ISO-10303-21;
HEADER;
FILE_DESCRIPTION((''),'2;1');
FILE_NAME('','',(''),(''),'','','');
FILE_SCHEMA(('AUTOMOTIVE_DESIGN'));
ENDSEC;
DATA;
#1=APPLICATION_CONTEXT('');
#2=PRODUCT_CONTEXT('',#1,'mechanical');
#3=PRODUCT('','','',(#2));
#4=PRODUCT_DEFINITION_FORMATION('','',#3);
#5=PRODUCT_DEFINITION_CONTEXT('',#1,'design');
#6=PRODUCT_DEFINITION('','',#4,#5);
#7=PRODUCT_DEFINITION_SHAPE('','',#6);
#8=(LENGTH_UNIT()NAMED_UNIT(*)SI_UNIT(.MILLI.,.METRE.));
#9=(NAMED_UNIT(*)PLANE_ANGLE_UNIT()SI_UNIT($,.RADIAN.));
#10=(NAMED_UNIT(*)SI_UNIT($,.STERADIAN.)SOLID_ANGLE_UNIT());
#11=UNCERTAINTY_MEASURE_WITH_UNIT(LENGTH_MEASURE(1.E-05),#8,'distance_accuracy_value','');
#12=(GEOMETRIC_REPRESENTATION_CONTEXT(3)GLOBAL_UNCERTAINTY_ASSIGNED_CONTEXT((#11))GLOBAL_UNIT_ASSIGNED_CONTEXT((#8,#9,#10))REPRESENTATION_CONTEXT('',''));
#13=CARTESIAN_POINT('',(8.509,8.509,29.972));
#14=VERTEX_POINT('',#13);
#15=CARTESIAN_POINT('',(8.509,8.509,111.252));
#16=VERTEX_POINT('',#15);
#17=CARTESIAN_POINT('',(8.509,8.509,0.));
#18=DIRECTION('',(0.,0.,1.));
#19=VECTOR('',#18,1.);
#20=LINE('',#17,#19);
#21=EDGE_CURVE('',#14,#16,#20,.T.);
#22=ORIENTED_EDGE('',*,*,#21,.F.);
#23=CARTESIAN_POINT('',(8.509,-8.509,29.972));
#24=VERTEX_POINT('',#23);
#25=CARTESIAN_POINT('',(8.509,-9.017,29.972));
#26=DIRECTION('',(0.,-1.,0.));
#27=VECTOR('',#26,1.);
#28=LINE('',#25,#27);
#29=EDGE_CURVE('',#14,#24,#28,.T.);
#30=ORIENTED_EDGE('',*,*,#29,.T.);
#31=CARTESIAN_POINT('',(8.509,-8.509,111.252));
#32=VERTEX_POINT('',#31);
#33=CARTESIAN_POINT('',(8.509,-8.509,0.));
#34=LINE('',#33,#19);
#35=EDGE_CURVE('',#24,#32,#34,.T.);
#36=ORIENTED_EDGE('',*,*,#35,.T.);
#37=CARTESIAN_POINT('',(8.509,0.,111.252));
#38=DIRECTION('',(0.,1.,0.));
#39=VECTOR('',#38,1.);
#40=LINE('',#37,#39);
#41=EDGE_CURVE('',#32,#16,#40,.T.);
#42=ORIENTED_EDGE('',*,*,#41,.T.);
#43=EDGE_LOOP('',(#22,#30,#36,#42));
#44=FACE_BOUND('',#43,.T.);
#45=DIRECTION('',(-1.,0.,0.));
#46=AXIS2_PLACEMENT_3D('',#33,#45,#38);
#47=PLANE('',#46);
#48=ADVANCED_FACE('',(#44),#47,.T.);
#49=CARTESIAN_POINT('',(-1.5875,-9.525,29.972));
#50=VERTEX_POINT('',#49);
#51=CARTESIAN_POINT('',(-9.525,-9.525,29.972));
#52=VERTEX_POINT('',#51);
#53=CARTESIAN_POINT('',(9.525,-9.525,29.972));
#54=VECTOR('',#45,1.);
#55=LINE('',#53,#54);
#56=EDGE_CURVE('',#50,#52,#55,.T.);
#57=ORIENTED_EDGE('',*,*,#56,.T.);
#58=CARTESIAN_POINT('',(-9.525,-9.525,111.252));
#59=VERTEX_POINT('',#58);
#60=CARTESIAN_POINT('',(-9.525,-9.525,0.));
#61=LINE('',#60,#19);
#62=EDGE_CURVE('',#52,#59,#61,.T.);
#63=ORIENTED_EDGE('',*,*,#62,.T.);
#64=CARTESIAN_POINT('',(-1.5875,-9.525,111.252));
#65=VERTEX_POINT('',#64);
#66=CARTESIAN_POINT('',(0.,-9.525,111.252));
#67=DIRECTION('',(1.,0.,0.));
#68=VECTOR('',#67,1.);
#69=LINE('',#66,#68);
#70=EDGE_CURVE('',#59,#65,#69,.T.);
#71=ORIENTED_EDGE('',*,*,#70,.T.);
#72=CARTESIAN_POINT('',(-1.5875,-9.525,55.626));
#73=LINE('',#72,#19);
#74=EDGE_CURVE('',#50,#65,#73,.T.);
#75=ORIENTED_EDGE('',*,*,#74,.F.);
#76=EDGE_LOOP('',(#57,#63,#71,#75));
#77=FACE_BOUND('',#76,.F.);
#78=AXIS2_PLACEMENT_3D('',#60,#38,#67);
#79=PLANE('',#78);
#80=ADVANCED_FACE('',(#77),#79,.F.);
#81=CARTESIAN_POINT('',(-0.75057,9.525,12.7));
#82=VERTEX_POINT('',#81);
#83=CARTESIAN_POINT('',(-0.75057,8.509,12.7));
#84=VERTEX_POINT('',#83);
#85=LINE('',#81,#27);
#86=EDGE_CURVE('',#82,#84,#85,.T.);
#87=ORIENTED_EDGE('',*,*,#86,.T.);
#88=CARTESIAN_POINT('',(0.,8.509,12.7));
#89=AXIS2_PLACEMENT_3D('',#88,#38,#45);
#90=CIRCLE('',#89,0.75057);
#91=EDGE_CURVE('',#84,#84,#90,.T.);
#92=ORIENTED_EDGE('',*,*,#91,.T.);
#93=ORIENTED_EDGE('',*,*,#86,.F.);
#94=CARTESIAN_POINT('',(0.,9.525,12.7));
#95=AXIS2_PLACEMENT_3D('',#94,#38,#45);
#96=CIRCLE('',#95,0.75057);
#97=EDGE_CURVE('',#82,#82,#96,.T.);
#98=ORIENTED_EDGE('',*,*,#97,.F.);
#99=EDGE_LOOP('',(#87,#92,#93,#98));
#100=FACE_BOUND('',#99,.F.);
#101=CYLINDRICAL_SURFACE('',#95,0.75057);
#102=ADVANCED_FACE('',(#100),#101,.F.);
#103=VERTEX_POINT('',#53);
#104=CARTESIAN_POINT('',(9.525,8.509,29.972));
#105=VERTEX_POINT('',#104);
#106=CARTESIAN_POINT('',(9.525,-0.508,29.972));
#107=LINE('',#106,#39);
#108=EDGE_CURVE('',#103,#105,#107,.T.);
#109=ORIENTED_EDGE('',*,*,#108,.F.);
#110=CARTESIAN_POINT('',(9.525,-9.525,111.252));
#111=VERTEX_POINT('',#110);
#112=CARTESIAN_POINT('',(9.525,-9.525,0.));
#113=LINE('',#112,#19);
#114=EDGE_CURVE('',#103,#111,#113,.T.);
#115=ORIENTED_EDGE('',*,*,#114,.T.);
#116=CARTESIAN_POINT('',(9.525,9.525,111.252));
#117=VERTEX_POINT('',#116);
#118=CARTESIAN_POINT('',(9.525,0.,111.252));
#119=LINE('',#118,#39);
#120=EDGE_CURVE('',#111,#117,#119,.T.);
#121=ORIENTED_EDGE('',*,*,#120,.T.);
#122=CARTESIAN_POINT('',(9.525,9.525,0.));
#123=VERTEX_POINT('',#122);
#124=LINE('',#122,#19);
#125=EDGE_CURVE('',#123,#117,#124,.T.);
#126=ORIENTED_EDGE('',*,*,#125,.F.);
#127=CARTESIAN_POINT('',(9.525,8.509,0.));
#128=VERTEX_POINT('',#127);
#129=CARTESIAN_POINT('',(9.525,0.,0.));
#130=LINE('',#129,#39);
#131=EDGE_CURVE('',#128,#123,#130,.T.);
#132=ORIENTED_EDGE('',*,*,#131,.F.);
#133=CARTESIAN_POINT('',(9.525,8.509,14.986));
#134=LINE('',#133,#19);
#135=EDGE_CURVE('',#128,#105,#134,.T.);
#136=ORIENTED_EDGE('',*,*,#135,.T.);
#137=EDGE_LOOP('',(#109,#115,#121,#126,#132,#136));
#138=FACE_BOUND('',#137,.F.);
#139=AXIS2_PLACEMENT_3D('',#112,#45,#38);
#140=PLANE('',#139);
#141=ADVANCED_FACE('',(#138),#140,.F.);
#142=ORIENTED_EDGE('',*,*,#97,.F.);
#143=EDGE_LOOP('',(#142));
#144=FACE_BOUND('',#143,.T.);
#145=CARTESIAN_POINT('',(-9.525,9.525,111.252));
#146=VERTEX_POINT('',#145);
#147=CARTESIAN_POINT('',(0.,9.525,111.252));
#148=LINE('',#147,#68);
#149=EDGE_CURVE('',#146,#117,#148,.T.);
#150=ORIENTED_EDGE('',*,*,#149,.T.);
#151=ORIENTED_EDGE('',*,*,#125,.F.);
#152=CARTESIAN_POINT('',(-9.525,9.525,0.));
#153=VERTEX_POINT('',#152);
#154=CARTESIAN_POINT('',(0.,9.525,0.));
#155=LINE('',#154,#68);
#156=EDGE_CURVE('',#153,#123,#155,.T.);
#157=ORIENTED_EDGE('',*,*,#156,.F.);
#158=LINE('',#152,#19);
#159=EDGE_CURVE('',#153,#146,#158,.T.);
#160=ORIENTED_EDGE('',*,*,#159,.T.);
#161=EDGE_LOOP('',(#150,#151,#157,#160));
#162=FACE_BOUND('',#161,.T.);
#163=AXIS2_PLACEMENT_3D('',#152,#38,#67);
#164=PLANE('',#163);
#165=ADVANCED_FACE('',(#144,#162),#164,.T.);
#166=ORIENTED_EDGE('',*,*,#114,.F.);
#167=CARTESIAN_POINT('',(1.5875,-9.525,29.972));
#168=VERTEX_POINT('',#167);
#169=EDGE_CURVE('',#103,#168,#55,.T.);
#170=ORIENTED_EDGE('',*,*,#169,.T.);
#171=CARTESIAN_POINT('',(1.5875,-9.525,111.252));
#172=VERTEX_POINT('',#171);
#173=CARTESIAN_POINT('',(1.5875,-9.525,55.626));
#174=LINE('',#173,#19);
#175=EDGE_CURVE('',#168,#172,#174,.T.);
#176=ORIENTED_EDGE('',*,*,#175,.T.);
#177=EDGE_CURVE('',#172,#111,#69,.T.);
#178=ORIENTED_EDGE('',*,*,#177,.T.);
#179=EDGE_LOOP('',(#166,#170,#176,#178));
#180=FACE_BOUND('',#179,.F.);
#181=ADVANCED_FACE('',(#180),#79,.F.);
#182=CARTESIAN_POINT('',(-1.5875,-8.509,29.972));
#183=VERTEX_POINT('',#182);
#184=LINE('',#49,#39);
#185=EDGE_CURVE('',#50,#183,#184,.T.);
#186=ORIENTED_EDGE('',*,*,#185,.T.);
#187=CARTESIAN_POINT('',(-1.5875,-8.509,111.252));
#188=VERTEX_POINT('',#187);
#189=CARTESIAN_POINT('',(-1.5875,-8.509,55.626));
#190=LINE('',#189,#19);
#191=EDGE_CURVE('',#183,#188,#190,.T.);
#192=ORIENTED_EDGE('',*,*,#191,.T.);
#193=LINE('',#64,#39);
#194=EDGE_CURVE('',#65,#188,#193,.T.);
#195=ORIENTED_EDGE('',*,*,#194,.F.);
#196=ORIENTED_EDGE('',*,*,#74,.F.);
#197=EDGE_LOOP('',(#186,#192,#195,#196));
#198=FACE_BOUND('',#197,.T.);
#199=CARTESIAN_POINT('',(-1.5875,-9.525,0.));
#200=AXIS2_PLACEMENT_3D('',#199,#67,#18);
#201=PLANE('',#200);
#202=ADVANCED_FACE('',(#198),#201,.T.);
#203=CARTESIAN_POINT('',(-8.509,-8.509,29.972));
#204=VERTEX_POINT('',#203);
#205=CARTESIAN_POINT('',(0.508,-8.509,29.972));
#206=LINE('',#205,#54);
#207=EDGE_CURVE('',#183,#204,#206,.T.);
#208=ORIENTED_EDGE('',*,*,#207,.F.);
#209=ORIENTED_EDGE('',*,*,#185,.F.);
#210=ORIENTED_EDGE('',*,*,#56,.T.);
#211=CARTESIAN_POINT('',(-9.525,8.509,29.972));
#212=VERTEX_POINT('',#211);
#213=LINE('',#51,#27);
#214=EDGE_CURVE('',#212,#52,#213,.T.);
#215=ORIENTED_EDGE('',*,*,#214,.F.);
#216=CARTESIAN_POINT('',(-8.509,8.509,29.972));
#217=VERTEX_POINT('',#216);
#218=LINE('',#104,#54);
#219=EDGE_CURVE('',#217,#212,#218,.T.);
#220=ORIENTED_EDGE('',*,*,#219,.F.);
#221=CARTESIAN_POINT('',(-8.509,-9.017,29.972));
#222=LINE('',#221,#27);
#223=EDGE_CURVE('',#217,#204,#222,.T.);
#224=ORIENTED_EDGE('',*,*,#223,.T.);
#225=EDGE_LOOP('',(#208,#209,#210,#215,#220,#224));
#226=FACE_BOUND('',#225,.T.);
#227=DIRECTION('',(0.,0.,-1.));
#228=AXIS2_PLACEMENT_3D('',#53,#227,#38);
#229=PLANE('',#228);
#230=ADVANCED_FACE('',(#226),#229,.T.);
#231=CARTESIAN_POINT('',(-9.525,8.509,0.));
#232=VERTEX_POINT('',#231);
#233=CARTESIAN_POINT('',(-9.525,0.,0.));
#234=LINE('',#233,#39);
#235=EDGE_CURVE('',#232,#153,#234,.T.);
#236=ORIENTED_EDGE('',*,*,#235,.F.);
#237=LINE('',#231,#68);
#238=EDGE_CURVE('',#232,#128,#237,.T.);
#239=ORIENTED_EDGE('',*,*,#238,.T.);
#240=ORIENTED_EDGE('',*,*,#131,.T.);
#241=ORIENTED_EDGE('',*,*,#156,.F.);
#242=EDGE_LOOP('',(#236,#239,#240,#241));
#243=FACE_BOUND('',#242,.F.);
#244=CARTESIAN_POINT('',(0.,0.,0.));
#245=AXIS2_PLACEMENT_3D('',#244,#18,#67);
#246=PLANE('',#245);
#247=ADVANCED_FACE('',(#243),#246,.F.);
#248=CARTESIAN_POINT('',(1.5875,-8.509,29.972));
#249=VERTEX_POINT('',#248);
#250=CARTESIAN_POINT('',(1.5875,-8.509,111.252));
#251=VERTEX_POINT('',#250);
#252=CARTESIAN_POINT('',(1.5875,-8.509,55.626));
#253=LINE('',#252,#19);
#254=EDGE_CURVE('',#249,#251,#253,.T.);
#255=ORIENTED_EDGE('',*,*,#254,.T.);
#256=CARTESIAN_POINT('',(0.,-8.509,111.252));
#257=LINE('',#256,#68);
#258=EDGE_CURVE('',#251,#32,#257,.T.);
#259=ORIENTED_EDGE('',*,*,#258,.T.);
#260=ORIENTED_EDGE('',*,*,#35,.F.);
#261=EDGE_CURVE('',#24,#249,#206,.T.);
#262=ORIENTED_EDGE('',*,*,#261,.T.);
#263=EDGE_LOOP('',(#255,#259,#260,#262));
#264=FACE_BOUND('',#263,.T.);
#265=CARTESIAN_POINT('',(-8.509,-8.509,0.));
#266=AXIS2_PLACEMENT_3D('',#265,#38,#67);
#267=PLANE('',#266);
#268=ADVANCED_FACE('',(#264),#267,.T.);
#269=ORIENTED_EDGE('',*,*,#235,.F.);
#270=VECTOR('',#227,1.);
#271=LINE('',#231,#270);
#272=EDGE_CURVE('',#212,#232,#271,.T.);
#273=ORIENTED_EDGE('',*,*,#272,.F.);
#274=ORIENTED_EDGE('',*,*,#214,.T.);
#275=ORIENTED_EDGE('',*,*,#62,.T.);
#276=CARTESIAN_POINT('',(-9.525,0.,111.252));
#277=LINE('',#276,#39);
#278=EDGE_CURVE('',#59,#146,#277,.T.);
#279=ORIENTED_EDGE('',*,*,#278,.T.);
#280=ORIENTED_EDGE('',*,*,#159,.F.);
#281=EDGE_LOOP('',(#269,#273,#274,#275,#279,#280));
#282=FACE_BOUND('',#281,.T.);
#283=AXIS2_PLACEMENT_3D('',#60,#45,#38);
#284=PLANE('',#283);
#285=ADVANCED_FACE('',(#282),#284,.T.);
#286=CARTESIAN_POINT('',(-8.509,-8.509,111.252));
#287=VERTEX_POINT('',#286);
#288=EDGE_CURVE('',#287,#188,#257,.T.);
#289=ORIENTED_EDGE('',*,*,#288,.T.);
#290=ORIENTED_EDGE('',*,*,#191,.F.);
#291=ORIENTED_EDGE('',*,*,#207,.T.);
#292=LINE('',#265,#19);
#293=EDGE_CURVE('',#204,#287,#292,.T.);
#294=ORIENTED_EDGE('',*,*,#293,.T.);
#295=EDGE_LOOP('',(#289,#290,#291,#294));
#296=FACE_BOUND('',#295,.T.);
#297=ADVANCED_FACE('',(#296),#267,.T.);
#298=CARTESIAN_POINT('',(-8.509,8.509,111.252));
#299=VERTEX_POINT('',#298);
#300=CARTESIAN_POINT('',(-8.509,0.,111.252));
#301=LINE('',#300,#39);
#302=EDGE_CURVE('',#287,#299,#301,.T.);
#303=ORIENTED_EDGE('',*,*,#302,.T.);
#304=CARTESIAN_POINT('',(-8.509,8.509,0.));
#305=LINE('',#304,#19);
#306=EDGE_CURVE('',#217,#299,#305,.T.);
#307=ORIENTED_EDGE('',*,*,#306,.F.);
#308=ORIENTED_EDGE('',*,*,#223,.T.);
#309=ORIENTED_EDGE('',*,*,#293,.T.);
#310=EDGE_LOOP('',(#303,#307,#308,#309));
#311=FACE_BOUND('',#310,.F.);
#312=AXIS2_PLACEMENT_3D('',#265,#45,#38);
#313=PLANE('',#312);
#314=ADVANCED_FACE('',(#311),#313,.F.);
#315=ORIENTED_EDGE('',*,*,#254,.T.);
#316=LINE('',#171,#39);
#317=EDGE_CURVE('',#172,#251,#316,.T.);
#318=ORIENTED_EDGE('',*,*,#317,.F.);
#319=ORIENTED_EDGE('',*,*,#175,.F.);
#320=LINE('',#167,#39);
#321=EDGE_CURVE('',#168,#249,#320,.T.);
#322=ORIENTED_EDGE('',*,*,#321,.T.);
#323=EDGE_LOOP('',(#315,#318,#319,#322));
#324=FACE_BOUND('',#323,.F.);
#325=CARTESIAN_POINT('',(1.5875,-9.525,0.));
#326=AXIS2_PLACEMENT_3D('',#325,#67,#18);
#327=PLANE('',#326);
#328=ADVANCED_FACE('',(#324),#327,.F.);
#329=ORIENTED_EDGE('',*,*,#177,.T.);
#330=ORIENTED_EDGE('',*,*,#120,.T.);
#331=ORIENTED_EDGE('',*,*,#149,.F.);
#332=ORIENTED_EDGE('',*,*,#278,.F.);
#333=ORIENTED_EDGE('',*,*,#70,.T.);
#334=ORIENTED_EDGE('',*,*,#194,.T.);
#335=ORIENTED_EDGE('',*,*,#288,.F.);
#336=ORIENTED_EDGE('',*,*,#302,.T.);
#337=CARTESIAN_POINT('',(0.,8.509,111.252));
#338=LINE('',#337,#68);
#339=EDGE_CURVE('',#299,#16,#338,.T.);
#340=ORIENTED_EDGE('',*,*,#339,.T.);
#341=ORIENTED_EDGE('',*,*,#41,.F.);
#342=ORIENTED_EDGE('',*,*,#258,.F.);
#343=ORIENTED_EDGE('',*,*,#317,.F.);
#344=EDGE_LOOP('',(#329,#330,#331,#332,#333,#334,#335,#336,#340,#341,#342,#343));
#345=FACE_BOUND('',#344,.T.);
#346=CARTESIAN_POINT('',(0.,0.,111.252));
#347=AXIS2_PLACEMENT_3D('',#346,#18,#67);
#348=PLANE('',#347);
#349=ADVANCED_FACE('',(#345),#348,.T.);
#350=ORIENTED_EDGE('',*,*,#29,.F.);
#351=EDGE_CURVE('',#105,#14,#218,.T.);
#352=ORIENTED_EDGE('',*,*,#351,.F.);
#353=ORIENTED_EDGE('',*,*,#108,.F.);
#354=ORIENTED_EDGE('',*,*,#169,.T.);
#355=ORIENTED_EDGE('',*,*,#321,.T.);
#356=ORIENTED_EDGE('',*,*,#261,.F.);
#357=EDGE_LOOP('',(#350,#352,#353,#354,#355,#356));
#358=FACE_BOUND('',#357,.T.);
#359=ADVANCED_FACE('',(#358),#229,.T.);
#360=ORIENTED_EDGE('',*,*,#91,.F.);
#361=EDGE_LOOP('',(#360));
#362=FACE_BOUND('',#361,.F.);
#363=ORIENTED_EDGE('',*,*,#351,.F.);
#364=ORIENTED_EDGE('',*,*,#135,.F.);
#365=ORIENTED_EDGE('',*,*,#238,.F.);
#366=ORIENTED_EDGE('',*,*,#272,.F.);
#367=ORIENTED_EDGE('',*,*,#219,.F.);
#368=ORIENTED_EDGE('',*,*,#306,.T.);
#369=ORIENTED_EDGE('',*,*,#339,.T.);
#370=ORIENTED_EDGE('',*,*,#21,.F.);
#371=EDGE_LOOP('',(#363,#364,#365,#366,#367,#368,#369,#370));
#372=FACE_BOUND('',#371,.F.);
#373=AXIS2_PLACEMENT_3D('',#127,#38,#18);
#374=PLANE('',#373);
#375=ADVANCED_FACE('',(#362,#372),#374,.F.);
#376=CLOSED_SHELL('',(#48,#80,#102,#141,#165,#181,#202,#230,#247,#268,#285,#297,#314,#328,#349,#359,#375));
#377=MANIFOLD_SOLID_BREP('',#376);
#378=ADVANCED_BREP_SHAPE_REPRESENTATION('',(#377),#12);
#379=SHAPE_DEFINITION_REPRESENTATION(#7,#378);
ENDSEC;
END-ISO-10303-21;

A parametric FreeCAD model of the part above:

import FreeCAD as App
import Part
import Sketcher
Q = App.Units.Quantity


def add_polygon(sketch, points):
    """Adds a closed chain of lines whose ends are joined by coincident constraints."""
    first, n = sketch.GeometryCount, len(points)
    for a, b in zip(points, points[1:] + points[:1]):
        sketch.addGeometry(Part.LineSegment(App.Vector(*a, 0), App.Vector(*b, 0)), False)
    for i in range(n):
        sketch.addConstraint(Sketcher.Constraint("Coincident", first + i, 2, first + (i + 1) % n, 1))

doc = App.newDocument("Part")
params = doc.addObject("Spreadsheet::Sheet", "Params")
for row, (alias, value) in enumerate([
    ("sketch1_width", "0.75 in"),
    ("sketch1_width2", "0.67 in"),
    ("pad1_length", "4.38 in"),
    ("sketch2_height", "4.38 in"),
    ("sketch2_width", "0.125 in"),
    ("pocket1_length", "0.04 in"),
    ("sketch3_width", "0.71 in"),
    ("sketch3_height", "1.18 in"),
], start=1):
    params.set(f"A{row}", alias)
    params.set(f"B{row}", "=" + value)
    params.setAlias(f"B{row}", alias)

body = doc.addObject("PartDesign::Body", "Body")

# Sketch on XY plane
sketch1 = doc.addObject("Sketcher::SketchObject", "Sketch")
body.addObject(sketch1)
sketch1.AttachmentSupport = (doc.XY_Plane, [""])
sketch1.MapMode = "FlatFace"
add_polygon(sketch1, [(-10, 10), (-10, -10), (10, -10), (10, 10)])  # lines 0-3
add_polygon(sketch1, [(9, -9), (-9, -9), (-9, 9), (9, 9)])  # lines 4-7
sketch1.addConstraint([
    Sketcher.Constraint("Vertical", 0),
    Sketcher.Constraint("Horizontal", 1),
    Sketcher.Constraint("Vertical", 2),
    Sketcher.Constraint("Horizontal", 3),
    Sketcher.Constraint("Horizontal", 4),
    Sketcher.Constraint("Vertical", 5),
    Sketcher.Constraint("Horizontal", 6),
    Sketcher.Constraint("Vertical", 7),
    Sketcher.Constraint("Symmetric", 0, 2, 2, 2, -1, 1),
    Sketcher.Constraint("Symmetric", 4, 2, 6, 2, -1, 1),
    Sketcher.Constraint("Equal", 3, 0),
    Sketcher.Constraint("Equal", 6, 5),
    Sketcher.Constraint("DistanceX", 1, 1, 1, 2, Q("0.75 in")),
    Sketcher.Constraint("DistanceX", 4, 2, 4, 1, Q("0.67 in")),
])
sketch1.setExpression("Constraints[20]", "Params.sketch1_width")
sketch1.setExpression("Constraints[21]", "Params.sketch1_width2")
pad1 = doc.addObject("PartDesign::Pad", "Pad")
body.addObject(pad1)
pad1.Profile = sketch1
pad1.setExpression("Length", "Params.pad1_length")

# Sketch on XZ plane
sketch2 = doc.addObject("Sketcher::SketchObject", "Sketch001")
body.addObject(sketch2)
sketch2.AttachmentSupport = (doc.XZ_Plane, [""])
sketch2.MapMode = "FlatFace"
sketch2.AttachmentOffset = App.Placement(App.Vector(0, 0, 0.375 * 25.4), App.Rotation())
add_polygon(sketch2, [(-1.6, 111.3), (-1.6, 0), (1.6, 0), (1.6, 111.3)])  # lines 0-3
sketch2.addConstraint([
    Sketcher.Constraint("Vertical", 0),
    Sketcher.Constraint("Horizontal", 1),
    Sketcher.Constraint("Vertical", 2),
    Sketcher.Constraint("Horizontal", 3),
    Sketcher.Constraint("Symmetric", 0, 2, 1, 2, -1, 1),
    Sketcher.Constraint("DistanceY", 0, 2, 0, 1, Q("4.38 in")),
    Sketcher.Constraint("DistanceX", 1, 1, 1, 2, Q("0.125 in")),
])
sketch2.setExpression("Constraints[9]", "Params.sketch2_height")
sketch2.setExpression("Constraints[10]", "Params.sketch2_width")
pocket1 = doc.addObject("PartDesign::Pocket", "Pocket")
body.addObject(pocket1)
pocket1.Profile = sketch2
pocket1.setExpression("Length", "Params.pocket1_length")

# Sketch on YZ plane
sketch3 = doc.addObject("Sketcher::SketchObject", "Sketch002")
body.addObject(sketch3)
sketch3.AttachmentSupport = (doc.YZ_Plane, [""])
sketch3.MapMode = "FlatFace"
sketch3.AttachmentOffset = App.Placement(App.Vector(0, 0, 0.375 * 25.4), App.Rotation())
add_polygon(sketch3, [(-10, 30), (-10, 0), (9, 0), (9, 30)])  # lines 0-3
sketch3.addConstraint([
    Sketcher.Constraint("Vertical", 0),
    Sketcher.Constraint("Horizontal", 1),
    Sketcher.Constraint("Vertical", 2),
    Sketcher.Constraint("Horizontal", 3),
    Sketcher.Constraint("PointOnObject", 0, 2, -1),
    Sketcher.Constraint("DistanceX", 1, 1, 1, 2, Q("0.71 in")),
    Sketcher.Constraint("DistanceY", 0, 2, 0, 1, Q("1.18 in")),
    Sketcher.Constraint("DistanceX", 0, 2, -1, 1, Q("0.375 in")),
])
sketch3.setExpression("Constraints[9]", "Params.sketch3_width")
sketch3.setExpression("Constraints[10]", "Params.sketch3_height")
pocket2 = doc.addObject("PartDesign::Pocket", "Pocket001")
body.addObject(pocket2)
pocket2.Profile = sketch3
pocket2.Type = "ThroughAll"

# Sketch on XZ plane
sketch4 = doc.addObject("Sketcher::SketchObject", "Sketch003")
body.addObject(sketch4)
sketch4.AttachmentSupport = (doc.XZ_Plane, [""])
sketch4.MapMode = "FlatFace"
sketch4.AttachmentOffset = App.Placement(App.Vector(0, 0, -0.375 * 25.4), App.Rotation())
sketch4.addGeometry(Part.Circle(App.Vector(0, 12.7, 0), App.Vector(0, 0, 1), 0.8), False)
sketch4.addConstraint([
    Sketcher.Constraint("PointOnObject", 0, 3, -2),
    Sketcher.Constraint("Diameter", 0, Q("0.0591 in")),
    Sketcher.Constraint("DistanceY", -1, 1, 0, 3, Q("0.5 in")),
])
pocket3 = doc.addObject("PartDesign::Pocket", "Pocket002")
body.addObject(pocket3)
pocket3.Profile = sketch4
pocket3.Type = "ThroughAll"
pocket3.Reversed = True

doc.recompute()
